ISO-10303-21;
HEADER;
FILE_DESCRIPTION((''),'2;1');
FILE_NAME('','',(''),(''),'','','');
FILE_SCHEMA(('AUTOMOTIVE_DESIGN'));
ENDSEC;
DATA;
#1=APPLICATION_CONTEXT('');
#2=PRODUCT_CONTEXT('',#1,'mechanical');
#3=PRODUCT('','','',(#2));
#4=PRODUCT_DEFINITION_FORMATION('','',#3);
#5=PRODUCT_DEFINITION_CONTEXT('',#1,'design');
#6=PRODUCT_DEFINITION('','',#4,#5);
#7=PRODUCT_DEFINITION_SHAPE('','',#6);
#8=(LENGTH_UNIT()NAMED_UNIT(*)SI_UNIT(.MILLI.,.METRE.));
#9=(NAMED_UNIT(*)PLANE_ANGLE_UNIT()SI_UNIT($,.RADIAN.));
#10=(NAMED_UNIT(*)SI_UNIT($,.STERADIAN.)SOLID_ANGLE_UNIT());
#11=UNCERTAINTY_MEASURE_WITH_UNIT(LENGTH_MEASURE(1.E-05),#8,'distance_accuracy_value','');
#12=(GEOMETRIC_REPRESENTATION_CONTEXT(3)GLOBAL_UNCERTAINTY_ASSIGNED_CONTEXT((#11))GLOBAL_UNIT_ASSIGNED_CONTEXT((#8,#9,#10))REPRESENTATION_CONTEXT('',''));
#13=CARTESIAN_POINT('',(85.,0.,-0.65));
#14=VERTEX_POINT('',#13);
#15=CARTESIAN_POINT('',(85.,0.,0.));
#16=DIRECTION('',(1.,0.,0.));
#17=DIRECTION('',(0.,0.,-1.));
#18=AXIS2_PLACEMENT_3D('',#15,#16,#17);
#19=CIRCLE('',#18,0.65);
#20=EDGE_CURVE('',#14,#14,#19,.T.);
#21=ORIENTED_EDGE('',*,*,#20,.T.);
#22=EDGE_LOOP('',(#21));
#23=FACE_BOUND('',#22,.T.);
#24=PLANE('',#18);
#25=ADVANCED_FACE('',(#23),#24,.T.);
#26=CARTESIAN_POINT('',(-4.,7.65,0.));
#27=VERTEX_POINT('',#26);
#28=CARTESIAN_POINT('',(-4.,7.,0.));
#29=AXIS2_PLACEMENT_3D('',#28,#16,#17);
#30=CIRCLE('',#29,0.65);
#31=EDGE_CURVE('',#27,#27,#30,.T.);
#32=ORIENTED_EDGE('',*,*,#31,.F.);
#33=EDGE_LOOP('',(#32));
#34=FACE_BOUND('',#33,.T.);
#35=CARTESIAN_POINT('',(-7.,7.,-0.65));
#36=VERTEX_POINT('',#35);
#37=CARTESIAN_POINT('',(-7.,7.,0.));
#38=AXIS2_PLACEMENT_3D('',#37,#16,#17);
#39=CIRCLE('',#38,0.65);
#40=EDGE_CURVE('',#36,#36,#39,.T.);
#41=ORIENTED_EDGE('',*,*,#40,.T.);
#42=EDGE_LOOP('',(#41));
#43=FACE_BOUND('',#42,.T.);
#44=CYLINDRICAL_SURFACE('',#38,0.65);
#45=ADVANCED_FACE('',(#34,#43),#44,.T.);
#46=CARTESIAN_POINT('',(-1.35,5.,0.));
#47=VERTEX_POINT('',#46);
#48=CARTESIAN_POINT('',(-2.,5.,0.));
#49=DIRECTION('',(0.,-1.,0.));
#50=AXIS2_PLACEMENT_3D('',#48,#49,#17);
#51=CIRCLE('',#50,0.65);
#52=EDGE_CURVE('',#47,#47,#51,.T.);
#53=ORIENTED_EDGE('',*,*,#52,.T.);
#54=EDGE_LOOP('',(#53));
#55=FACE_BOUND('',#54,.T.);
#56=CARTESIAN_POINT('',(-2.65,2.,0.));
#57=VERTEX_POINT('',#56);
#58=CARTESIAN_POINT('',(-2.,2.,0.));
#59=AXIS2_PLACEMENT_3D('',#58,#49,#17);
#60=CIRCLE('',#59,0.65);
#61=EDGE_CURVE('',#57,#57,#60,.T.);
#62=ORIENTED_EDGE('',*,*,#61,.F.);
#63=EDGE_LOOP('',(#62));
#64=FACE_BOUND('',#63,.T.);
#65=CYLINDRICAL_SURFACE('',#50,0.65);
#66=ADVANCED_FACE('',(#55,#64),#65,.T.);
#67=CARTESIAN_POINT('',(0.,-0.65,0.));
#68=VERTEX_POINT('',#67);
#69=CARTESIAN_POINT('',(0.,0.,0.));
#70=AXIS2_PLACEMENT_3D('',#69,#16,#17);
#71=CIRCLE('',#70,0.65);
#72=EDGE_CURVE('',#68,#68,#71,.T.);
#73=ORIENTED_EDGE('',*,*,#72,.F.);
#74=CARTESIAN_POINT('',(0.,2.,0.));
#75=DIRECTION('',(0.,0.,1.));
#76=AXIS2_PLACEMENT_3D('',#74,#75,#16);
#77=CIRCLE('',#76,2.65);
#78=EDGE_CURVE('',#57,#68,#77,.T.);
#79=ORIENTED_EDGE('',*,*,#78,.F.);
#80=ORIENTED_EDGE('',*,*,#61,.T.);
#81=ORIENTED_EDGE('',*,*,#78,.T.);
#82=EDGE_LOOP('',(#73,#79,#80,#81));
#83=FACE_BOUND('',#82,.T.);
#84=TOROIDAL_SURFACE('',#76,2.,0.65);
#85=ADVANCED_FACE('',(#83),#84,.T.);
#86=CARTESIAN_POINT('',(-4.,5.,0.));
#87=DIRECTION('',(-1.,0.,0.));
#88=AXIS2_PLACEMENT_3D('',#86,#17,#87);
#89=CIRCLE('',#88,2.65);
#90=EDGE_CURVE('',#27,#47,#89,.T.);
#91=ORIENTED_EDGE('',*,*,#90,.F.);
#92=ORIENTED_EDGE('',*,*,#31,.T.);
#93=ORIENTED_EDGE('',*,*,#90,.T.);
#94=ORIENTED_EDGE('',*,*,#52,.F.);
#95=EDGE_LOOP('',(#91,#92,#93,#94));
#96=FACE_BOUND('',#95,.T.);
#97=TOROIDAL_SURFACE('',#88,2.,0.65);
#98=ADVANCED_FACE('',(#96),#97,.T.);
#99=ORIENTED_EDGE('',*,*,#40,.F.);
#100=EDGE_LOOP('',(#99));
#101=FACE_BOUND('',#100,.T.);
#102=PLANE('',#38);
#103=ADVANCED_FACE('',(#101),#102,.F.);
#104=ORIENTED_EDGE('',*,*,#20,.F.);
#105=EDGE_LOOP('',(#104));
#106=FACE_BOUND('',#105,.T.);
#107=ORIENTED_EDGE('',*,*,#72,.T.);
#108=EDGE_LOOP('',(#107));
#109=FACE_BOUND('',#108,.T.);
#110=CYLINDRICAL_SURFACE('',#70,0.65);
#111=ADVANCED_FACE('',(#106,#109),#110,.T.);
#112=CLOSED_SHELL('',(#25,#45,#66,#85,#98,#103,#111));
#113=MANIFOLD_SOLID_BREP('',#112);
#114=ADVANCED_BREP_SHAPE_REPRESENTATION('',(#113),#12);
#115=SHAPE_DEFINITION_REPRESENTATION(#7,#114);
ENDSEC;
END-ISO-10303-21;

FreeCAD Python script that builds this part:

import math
import FreeCAD as App
import Part
import Sketcher

V = App.Vector
Q = App.Units.Quantity

doc = App.newDocument("Part")
params = doc.addObject("Spreadsheet::Sheet", "Params")
for row, (alias, value) in enumerate([
    ("sketch1_diameter", "1.3 mm"),
    ("sketch2_radius", "2 mm"),
    ("sketch2_width", "85 mm"),
    ("sketch2_width2", "3 mm"),
], start=1):
    params.set(f"A{row}", alias)
    params.set(f"B{row}", "=" + value)
    params.setAlias(f"B{row}", alias)

body = doc.addObject("PartDesign::Body", "Body")

sketch1 = body.newObject("Sketcher::SketchObject", "Sketch")
sketch1.AttachmentSupport = (doc.getObject("YZ_Plane"), [""])
sketch1.MapMode = "FlatFace"
sketch1.AttachmentOffset = App.Placement(V(0, 0, 85), App.Rotation())
sketch1.addGeometry(Part.Circle(V(0, 0, 0), V(0, 0, 1), 0.7), False)
sketch1.addConstraint([
    Sketcher.Constraint("Coincident", 0, 3, -1, 1),
    Sketcher.Constraint("Diameter", 0, Q("1.3 mm")),
])
sketch1.setExpression("Constraints[1]", "Params.sketch1_diameter")

sketch2 = body.newObject("Sketcher::SketchObject", "Sketch001")
sketch2.AttachmentSupport = (doc.getObject("XY_Plane"), [""])
sketch2.MapMode = "FlatFace"
sketch2.addGeometry([
    Part.LineSegment(V(85, 0, 0), V(0, 0, 0)),
    Part.ArcOfCircle(Part.Circle(V(0, 2, 0), V(0, 0, 1), 2), math.radians(-180), math.radians(-90)),
    Part.LineSegment(V(-2, 2, 0), V(-2, 5, 0)),
    Part.ArcOfCircle(Part.Circle(V(-4, 5, 0), V(0, 0, 1), 2), math.radians(0), math.radians(90)),
    Part.LineSegment(V(-4, 7, 0), V(-7, 7, 0)),
], False)
sketch2.addConstraint([
    Sketcher.Constraint("Tangent", 0, 2, 1, 2),
    Sketcher.Constraint("Tangent", 1, 1, 2, 1),
    Sketcher.Constraint("Tangent", 2, 2, 3, 1),
    Sketcher.Constraint("Tangent", 3, 2, 4, 1),
    Sketcher.Constraint("Horizontal", 0),
    Sketcher.Constraint("Vertical", 2),
    Sketcher.Constraint("Horizontal", 4),
    Sketcher.Constraint("Coincident", 0, 2, -1, 1),
    Sketcher.Constraint("Equal", 1, 3),
    Sketcher.Constraint("Equal", 4, 2),
    Sketcher.Constraint("Radius", 1, Q("2 mm")),
    Sketcher.Constraint("DistanceX", 0, 2, 0, 1, Q("85 mm")),
    Sketcher.Constraint("DistanceX", 4, 2, 4, 1, Q("3 mm")),
])
sketch2.setExpression("Constraints[10]", "Params.sketch2_radius")
sketch2.setExpression("Constraints[11]", "Params.sketch2_width")
sketch2.setExpression("Constraints[12]", "Params.sketch2_width2")
doc.recompute()

additivepipe = body.newObject("PartDesign::AdditivePipe", "AdditivePipe")
additivepipe.Profile = sketch1
additivepipe.Spine = (sketch2, ["Edge1", "Edge2", "Edge3", "Edge4", "Edge5"])

doc.recompute()
